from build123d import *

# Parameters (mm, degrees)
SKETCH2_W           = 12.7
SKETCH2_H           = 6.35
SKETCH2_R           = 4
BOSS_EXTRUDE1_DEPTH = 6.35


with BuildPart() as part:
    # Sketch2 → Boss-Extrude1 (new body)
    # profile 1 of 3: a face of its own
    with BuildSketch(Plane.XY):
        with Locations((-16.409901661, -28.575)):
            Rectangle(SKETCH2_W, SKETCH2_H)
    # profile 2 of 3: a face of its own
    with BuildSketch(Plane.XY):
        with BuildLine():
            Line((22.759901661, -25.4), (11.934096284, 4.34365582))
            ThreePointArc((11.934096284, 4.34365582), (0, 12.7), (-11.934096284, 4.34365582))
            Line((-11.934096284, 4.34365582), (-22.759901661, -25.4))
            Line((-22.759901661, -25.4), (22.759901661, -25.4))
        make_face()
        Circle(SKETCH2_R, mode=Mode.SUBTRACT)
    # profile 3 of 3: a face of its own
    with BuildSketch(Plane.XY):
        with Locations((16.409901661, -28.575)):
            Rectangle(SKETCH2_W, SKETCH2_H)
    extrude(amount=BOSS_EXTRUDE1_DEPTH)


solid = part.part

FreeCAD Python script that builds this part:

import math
import FreeCAD as App
import Part
import Sketcher
from FreeCAD import Vector
Q = App.Units.Quantity

doc = App.newDocument("Part")
body = doc.addObject("PartDesign::Body", "Body")

sketch1 = doc.addObject("Sketcher::SketchObject", "Sketch")
body.addObject(sketch1)
sketch1.AttachmentSupport = (doc.XY_Plane, [""])
sketch1.MapMode = "FlatFace"
sketch1.addGeometry([
    Part.LineSegment(Vector(-22.8, -25.4, 0), Vector(-22.8, -31.8, 0)),
    Part.LineSegment(Vector(-22.8, -31.8, 0), Vector(-10.1, -31.8, 0)),
    Part.LineSegment(Vector(-10.1, -31.8, 0), Vector(-10.1, -25.4, 0)),
    Part.LineSegment(Vector(-10.1, -25.4, 0), Vector(10.1, -25.4, 0)),
    Part.LineSegment(Vector(10.1, -25.4, 0), Vector(10.1, -31.8, 0)),
    Part.LineSegment(Vector(10.1, -31.8, 0), Vector(22.8, -31.8, 0)),
    Part.LineSegment(Vector(22.8, -31.8, 0), Vector(22.8, -25.4, 0)),
    Part.LineSegment(Vector(22.8, -25.4, 0), Vector(11.9, 4.3, 0)),
    Part.ArcOfCircle(Part.Circle(Vector(0, 0, 0), Vector(0, 0, 1), 12.7), math.radians(20), math.radians(160)),
    Part.LineSegment(Vector(-11.9, 4.3, 0), Vector(-22.8, -25.4, 0)),
    Part.Circle(Vector(0, 0, 0), Vector(0, 0, 1), 4),
], False)
sketch1.addConstraint([
    Sketcher.Constraint("Coincident", 0, 2, 1, 1),
    Sketcher.Constraint("Coincident", 1, 2, 2, 1),
    Sketcher.Constraint("Coincident", 2, 2, 3, 1),
    Sketcher.Constraint("Coincident", 3, 2, 4, 1),
    Sketcher.Constraint("Coincident", 4, 2, 5, 1),
    Sketcher.Constraint("Coincident", 5, 2, 6, 1),
    Sketcher.Constraint("Coincident", 6, 2, 7, 1),
    Sketcher.Constraint("Tangent", 7, 2, 8, 1),
    Sketcher.Constraint("Tangent", 8, 2, 9, 1),
    Sketcher.Constraint("Coincident", 9, 2, 0, 1),
    Sketcher.Constraint("Vertical", 0),
    Sketcher.Constraint("Horizontal", 1),
    Sketcher.Constraint("Vertical", 2),
    Sketcher.Constraint("Horizontal", 3),
    Sketcher.Constraint("Vertical", 4),
    Sketcher.Constraint("Horizontal", 5),
    Sketcher.Constraint("Vertical", 6),
    Sketcher.Constraint("Coincident", 8, 3, -1, 1),
    Sketcher.Constraint("Coincident", 10, 3, -1, 1),
    Sketcher.Constraint("Symmetric", 1, 2, 4, 2, -2),
    Sketcher.Constraint("Symmetric", 6, 2, 9, 2, -2),
    Sketcher.Constraint("Horizontal", 3, 2, 6, 2),
    Sketcher.Constraint("Radius", 8, Q("0.5 in")),
    Sketcher.Constraint("DistanceX", 1, 1, 1, 2, Q("0.5 in")),
    Sketcher.Constraint("DistanceY", 2, 2, -1, 1, Q("1 in")),
    Sketcher.Constraint("Angle", 7, Q("110 deg")),
    Sketcher.Constraint("DistanceY", 0, 2, 0, 1, Q("0.25 in")),
    Sketcher.Constraint("Diameter", 10, Q("8 mm")),
])
pad1 = doc.addObject("PartDesign::Pad", "Pad")
body.addObject(pad1)
pad1.Profile = sketch1
pad1.Length = Q("0.25 in")

doc.recompute()
